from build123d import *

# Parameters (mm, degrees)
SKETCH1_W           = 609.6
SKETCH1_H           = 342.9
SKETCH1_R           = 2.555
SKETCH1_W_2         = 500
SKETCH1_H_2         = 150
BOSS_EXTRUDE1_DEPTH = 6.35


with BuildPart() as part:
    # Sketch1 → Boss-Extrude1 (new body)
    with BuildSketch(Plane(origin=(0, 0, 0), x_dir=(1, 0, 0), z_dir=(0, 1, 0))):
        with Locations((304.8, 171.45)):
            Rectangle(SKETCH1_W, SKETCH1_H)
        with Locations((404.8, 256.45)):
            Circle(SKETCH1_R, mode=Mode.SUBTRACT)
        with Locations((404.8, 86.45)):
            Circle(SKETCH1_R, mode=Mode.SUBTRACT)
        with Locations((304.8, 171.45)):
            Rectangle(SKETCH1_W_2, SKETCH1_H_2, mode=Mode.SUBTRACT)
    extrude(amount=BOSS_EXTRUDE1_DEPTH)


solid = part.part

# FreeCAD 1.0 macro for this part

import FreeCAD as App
import Part
import Sketcher

V = App.Vector
Q = App.Units.Quantity


def add_polygon(sketch, points):
    """Adds a closed chain of lines whose ends are joined by coincident constraints."""
    first, n = sketch.GeometryCount, len(points)
    for a, b in zip(points, points[1:] + points[:1]):
        sketch.addGeometry(Part.LineSegment(App.Vector(*a, 0), App.Vector(*b, 0)), False)
    for i in range(n):
        sketch.addConstraint(Sketcher.Constraint("Coincident", first + i, 2, first + (i + 1) % n, 1))

doc = App.newDocument("Part")
body = doc.addObject("PartDesign::Body", "Body")

# Sketch on XZ plane
sketch1 = doc.addObject("Sketcher::SketchObject", "Sketch")
body.addObject(sketch1)
sketch1.AttachmentSupport = (doc.XZ_Plane, [""])
sketch1.MapMode = "FlatFace"
add_polygon(sketch1, [(0, -342.9), (0, 0), (609.6, 0), (609.6, -342.9)])  # lines 0-3
sketch1.addGeometry(Part.Circle(V(404.8, -86.5, 0), V(0, 0, 1), 2.6), False)  # 4
add_polygon(sketch1, [(554.8, -96.5), (54.8, -96.5), (54.8, -246.4), (554.8, -246.4)])  # lines 5-8
sketch1.addGeometry(Part.Circle(V(404.8, -256.4, 0), V(0, 0, 1), 2.6), False)  # 9
sketch1.addConstraint(Sketcher.Constraint("Vertical", 0))
sketch1.addConstraint(Sketcher.Constraint("Horizontal", 1))
sketch1.addConstraint(Sketcher.Constraint("Vertical", 2))
sketch1.addConstraint(Sketcher.Constraint("Horizontal", 3))
sketch1.addConstraint(Sketcher.Constraint("Horizontal", 5))
sketch1.addConstraint(Sketcher.Constraint("Vertical", 6))
sketch1.addConstraint(Sketcher.Constraint("Horizontal", 7))
sketch1.addConstraint(Sketcher.Constraint("Vertical", 8))
sketch1.addConstraint(Sketcher.Constraint("Coincident", 0, 2, -1, 1))
sketch1.addConstraint(Sketcher.Constraint("Equal", 4, 9))
sketch1.addConstraint(Sketcher.Constraint("Vertical", 4, 3, 9, 3))
sketch1.addConstraint(Sketcher.Constraint("DistanceX", 1, 1, 1, 2, Q("24 in")))
sketch1.addConstraint(Sketcher.Constraint("DistanceY", 0, 1, 0, 2, Q("13.5 in")))
sketch1.addConstraint(Sketcher.Constraint("Diameter", 4, 5.11))
sketch1.addConstraint(Sketcher.Constraint("DistanceX", 5, 2, 5, 1, 500.0))
sketch1.addConstraint(Sketcher.Constraint("DistanceY", 6, 2, 6, 1, 150.0))
sketch1.addConstraint(Sketcher.Constraint("DistanceX", -1, 1, 4, 3, 404.8))
sketch1.addConstraint(Sketcher.Constraint("DistanceY", 4, 3, -1, 1, 86.45))
sketch1.addConstraint(Sketcher.Constraint("DistanceY", 9, 3, -1, 1, 256.45))
sketch1.addConstraint(Sketcher.Constraint("DistanceX", -1, 1, 5, 2, 54.8))
sketch1.addConstraint(Sketcher.Constraint("DistanceY", 5, 2, -1, 1, 96.45))
pad1 = doc.addObject("PartDesign::Pad", "Pad")
body.addObject(pad1)
pad1.Profile = sketch1
pad1.Length = Q("0.25 in")
pad1.Reversed = True

doc.recompute()
